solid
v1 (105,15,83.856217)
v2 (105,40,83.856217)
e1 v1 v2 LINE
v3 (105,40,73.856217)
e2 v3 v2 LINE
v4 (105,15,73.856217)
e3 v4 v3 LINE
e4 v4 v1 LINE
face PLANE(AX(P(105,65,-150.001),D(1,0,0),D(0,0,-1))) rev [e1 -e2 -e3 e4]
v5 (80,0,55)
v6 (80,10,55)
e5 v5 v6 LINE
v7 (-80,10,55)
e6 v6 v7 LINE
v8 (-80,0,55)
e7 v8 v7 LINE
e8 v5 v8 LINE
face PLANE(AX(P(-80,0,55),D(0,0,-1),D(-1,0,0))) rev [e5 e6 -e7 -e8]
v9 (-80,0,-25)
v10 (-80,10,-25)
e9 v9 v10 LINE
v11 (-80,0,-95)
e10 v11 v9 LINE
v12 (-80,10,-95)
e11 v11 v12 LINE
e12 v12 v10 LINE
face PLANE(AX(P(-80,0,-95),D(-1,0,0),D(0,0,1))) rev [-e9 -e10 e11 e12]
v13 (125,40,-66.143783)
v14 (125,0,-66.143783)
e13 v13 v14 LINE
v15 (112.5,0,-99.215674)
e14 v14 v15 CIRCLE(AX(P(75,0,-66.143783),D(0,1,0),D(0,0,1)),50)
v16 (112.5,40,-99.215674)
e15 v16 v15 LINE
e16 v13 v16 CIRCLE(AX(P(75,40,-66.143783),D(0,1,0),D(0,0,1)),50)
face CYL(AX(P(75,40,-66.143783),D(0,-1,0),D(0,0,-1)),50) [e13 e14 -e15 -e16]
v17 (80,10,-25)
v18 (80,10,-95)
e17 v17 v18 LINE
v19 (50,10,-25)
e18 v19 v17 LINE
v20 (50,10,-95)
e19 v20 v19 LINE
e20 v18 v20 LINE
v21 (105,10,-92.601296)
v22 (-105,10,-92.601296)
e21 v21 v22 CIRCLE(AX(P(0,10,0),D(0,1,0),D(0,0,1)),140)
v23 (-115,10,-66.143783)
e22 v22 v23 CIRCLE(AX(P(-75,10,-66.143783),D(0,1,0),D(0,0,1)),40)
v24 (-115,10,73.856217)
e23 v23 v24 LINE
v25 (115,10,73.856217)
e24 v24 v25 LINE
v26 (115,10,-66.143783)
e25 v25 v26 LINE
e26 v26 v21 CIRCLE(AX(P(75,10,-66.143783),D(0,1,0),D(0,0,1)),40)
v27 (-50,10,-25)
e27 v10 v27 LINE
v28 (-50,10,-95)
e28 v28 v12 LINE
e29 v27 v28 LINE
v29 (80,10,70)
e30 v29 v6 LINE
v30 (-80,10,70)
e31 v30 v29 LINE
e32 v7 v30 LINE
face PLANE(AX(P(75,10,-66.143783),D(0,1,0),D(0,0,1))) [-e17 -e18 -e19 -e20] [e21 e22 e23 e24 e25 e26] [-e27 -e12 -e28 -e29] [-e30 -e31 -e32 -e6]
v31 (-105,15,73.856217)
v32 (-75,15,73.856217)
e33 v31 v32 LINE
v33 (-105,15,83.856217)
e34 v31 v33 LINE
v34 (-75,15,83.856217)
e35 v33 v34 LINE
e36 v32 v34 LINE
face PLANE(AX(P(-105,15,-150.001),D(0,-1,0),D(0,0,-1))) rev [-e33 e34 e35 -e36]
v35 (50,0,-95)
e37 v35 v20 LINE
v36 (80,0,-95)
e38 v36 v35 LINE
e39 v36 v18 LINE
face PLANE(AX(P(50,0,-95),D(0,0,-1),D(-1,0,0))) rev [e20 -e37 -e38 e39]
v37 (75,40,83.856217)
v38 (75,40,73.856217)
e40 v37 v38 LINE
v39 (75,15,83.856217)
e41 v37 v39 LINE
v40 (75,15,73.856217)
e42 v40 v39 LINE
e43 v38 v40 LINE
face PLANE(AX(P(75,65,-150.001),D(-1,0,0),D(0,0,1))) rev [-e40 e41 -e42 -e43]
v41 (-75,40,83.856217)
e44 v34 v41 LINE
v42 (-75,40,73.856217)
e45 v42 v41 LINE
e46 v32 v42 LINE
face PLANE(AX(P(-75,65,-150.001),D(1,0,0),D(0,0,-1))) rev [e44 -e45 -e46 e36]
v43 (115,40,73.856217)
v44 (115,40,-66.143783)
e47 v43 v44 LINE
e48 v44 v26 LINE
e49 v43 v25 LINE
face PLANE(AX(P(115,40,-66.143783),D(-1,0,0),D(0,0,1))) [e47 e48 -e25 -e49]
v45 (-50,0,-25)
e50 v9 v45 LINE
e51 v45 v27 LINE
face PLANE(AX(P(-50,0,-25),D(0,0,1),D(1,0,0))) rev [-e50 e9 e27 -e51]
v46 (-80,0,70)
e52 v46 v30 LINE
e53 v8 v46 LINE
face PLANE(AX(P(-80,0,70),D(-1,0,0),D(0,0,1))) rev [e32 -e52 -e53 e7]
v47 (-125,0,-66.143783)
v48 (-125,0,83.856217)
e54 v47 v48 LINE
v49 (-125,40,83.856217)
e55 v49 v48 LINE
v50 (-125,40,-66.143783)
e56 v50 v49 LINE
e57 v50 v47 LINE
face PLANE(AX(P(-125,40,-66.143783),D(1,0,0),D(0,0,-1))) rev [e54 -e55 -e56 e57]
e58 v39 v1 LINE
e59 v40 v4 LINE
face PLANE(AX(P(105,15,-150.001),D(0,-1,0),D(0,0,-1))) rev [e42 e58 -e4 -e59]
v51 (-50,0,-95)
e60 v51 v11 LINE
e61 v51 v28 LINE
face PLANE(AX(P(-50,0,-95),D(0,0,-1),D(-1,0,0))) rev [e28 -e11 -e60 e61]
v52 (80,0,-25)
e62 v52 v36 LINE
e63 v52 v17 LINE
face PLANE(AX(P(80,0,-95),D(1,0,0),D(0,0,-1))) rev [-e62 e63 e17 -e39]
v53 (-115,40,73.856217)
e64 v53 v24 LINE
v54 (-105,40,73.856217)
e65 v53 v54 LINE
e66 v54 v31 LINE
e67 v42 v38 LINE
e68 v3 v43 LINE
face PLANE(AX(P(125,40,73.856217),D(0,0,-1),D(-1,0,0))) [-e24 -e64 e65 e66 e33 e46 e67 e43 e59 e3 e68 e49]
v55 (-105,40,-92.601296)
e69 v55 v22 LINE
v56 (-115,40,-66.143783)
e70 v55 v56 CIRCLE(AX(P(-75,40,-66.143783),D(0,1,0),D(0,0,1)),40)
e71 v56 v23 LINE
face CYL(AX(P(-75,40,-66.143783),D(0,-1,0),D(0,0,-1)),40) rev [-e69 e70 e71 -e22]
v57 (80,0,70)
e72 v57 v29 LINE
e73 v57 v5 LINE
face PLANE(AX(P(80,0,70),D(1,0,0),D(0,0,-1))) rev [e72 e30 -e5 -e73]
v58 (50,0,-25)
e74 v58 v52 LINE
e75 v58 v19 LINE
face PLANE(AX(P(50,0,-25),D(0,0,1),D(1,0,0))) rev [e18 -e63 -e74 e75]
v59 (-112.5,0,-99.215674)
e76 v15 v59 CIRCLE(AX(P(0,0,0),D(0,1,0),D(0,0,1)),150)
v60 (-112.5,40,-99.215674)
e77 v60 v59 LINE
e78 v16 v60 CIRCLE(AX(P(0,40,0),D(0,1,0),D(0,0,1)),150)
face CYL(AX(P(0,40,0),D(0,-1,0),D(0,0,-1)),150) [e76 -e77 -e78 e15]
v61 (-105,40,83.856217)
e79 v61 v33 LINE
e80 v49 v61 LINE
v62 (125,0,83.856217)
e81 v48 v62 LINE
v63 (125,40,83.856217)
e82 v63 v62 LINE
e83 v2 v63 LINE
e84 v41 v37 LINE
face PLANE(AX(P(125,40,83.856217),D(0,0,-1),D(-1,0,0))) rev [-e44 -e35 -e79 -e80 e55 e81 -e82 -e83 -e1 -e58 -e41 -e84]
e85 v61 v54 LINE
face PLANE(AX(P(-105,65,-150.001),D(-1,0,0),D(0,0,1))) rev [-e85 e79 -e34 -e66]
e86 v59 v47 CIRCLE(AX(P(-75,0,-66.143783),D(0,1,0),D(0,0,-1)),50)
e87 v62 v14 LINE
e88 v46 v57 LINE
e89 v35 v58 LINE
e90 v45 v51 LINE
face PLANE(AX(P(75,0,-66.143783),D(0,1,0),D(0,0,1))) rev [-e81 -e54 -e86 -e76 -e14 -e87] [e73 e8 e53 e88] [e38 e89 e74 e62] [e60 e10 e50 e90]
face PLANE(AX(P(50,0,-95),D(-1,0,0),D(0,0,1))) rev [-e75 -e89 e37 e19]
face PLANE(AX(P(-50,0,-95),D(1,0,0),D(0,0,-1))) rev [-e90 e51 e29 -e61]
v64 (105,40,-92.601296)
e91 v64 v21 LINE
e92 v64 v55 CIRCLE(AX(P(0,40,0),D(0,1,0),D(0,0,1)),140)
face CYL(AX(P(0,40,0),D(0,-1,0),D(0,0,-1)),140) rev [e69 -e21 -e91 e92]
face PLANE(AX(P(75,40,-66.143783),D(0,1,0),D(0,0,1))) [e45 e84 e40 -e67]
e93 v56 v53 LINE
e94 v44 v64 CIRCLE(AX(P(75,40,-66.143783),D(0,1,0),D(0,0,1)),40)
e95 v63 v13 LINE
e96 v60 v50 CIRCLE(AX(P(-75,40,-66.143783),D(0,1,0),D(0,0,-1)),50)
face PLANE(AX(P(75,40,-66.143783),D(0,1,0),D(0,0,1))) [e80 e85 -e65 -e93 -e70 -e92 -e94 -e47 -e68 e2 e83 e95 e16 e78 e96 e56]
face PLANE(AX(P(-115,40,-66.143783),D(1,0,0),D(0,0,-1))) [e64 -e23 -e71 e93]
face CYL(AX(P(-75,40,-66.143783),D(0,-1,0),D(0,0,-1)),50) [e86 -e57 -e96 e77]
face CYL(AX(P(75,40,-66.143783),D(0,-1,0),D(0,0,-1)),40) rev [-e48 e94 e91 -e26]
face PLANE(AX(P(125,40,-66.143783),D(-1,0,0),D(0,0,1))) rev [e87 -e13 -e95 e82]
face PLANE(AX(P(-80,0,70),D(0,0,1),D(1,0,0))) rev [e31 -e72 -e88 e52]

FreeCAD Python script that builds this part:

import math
import FreeCAD as App
import Part
import Sketcher

V = App.Vector


def faces_at(feature, points):
    """Names of the faces that lie closest to the given points."""
    faces = feature.Shape.Faces
    near = lambda p: min(range(len(faces)), key=lambda i: faces[i].distToShape(Part.Vertex(*p))[0])
    return sorted({f"Face{near(p) + 1}" for p in points})


def add_polygon(sketch, points):
    """Adds a closed chain of lines whose ends are joined by coincident constraints."""
    first, n = sketch.GeometryCount, len(points)
    for a, b in zip(points, points[1:] + points[:1]):
        sketch.addGeometry(Part.LineSegment(App.Vector(*a, 0), App.Vector(*b, 0)), False)
    for i in range(n):
        sketch.addConstraint(Sketcher.Constraint("Coincident", first + i, 2, first + (i + 1) % n, 1))

doc = App.newDocument("Part")
body = doc.addObject("PartDesign::Body", "Body")

# Sketch on XZ plane
sketch1 = body.newObject("Sketcher::SketchObject", "Sketch")
sketch1.AttachmentSupport = (doc.getObject("XZ_Plane"), [""])
sketch1.MapMode = "FlatFace"
sketch1.addGeometry(Part.LineSegment(V(125, 83.856217, 0), V(125, -66.143783, 0)), False)
sketch1.addGeometry(Part.ArcOfCircle(Part.Circle(V(75, -66.143783, 0), V(0, 0, 1), 50), math.radians(-41.409622), math.radians(0)), False)
sketch1.addGeometry(Part.ArcOfCircle(Part.Circle(V(0, 0, 0), V(0, 0, 1), 150), math.radians(-138.590378), math.radians(-41.409622)), False)
sketch1.addGeometry(Part.ArcOfCircle(Part.Circle(V(-75, -66.143783, 0), V(0, 0, 1), 50), math.radians(180), math.radians(221.409622)), False)
sketch1.addGeometry(Part.LineSegment(V(-125, -66.143783, 0), V(-125, 83.856217, 0)), False)
sketch1.addGeometry(Part.LineSegment(V(-125, 83.856217, 0), V(125, 83.856217, 0)), False)
sketch1.addConstraint(Sketcher.Constraint("Tangent", 0, 2, 1, 2))
sketch1.addConstraint(Sketcher.Constraint("Tangent", 1, 1, 2, 2))
sketch1.addConstraint(Sketcher.Constraint("Tangent", 2, 1, 3, 2))
sketch1.addConstraint(Sketcher.Constraint("Tangent", 3, 1, 4, 1))
sketch1.addConstraint(Sketcher.Constraint("Coincident", 4, 2, 5, 1))
sketch1.addConstraint(Sketcher.Constraint("Coincident", 5, 2, 0, 1))
sketch1.addConstraint(Sketcher.Constraint("Vertical", 0))
sketch1.addConstraint(Sketcher.Constraint("Vertical", 4))
sketch1.addConstraint(Sketcher.Constraint("Horizontal", 5))
sketch1.addConstraint(Sketcher.Constraint("Coincident", 2, 3, -1, 1))
sketch1.addConstraint(Sketcher.Constraint("Equal", 1, 3))
sketch1.addConstraint(Sketcher.Constraint("Horizontal", 1, 3, 3, 3))
sketch1.addConstraint(Sketcher.Constraint("Radius", 1, 50.0))
sketch1.addConstraint(Sketcher.Constraint("Radius", 2, 150.0))
sketch1.addConstraint(Sketcher.Constraint("DistanceX", 5, 1, 5, 2, 250.0))
sketch1.addConstraint(Sketcher.Constraint("DistanceY", 0, 2, 0, 1, 150.0))
pad1 = body.newObject("PartDesign::Pad", "Pad")
pad1.Profile = sketch1
pad1.Length = 40
pad1.Reversed = True
doc.recompute()

thickness = body.newObject("PartDesign::Thickness", "Thickness")
thickness.Base = (pad1, faces_at(pad1, [(0, 40, -33.072)]))
thickness.Value = 10
thickness.Reversed = True
thickness.Join = "Intersection"

# Sketch on XZ plane
sketch2 = body.newObject("Sketcher::SketchObject", "Sketch001")
sketch2.AttachmentSupport = (doc.getObject("XZ_Plane"), [""])
sketch2.MapMode = "FlatFace"
sketch2.AttachmentOffset = App.Placement(V(0, 0, -10), App.Rotation())
add_polygon(sketch2, [(-80, -95), (-80, -25), (-50, -25), (-50, -95)])  # lines 0-3
add_polygon(sketch2, [(50, -95), (50, -25), (80, -25), (80, -95)])  # lines 4-7
add_polygon(sketch2, [(-80, 55), (-80, 70), (80, 70), (80, 55)])  # lines 8-11
sketch2.addConstraint(Sketcher.Constraint("Vertical", 0))
sketch2.addConstraint(Sketcher.Constraint("Horizontal", 1))
sketch2.addConstraint(Sketcher.Constraint("Vertical", 2))
sketch2.addConstraint(Sketcher.Constraint("Horizontal", 3))
sketch2.addConstraint(Sketcher.Constraint("Vertical", 4))
sketch2.addConstraint(Sketcher.Constraint("Horizontal", 5))
sketch2.addConstraint(Sketcher.Constraint("Vertical", 6))
sketch2.addConstraint(Sketcher.Constraint("Horizontal", 7))
sketch2.addConstraint(Sketcher.Constraint("Vertical", 8))
sketch2.addConstraint(Sketcher.Constraint("Horizontal", 9))
sketch2.addConstraint(Sketcher.Constraint("Vertical", 10))
sketch2.addConstraint(Sketcher.Constraint("Horizontal", 11))
sketch2.addConstraint(Sketcher.Constraint("Symmetric", 1, 2, 4, 2, -2))
sketch2.addConstraint(Sketcher.Constraint("Symmetric", 3, 2, 6, 2, -2))
sketch2.addConstraint(Sketcher.Constraint("Vertical", 3, 2, 8, 2))
sketch2.addConstraint(Sketcher.Constraint("Vertical", 6, 2, 9, 2))
sketch2.addConstraint(Sketcher.Constraint("DistanceX", 1, 1, 1, 2, 30.0))
sketch2.addConstraint(Sketcher.Constraint("DistanceX", 9, 1, 9, 2, 160.0))
sketch2.addConstraint(Sketcher.Constraint("DistanceY", 0, 1, 0, 2, 70.0))
sketch2.addConstraint(Sketcher.Constraint("DistanceY", 8, 1, 8, 2, 15.0))
sketch2.addConstraint(Sketcher.Constraint("DistanceY", 0, 2, -1, 1, 25.0))
sketch2.addConstraint(Sketcher.Constraint("DistanceY", -1, 1, 8, 2, 70.0))
pocket1 = body.newObject("PartDesign::Pocket", "Pocket")
pocket1.Profile = sketch2
pocket1.Type = "ThroughAll"
pocket1.Reversed = True

# Sketch on XY plane
sketch3 = body.newObject("Sketcher::SketchObject", "Sketch002")
sketch3.AttachmentSupport = (doc.getObject("XY_Plane"), [""])
sketch3.MapMode = "FlatFace"
sketch3.AttachmentOffset = App.Placement(V(0, 0, 83.856217), App.Rotation())
add_polygon(sketch3, [(-105, 65), (-105, 15), (-75, 15), (-75, 65)])  # lines 0-3
sketch3.addConstraint(Sketcher.Constraint("Vertical", 0))
sketch3.addConstraint(Sketcher.Constraint("Horizontal", 1))
sketch3.addConstraint(Sketcher.Constraint("Vertical", 2))
sketch3.addConstraint(Sketcher.Constraint("Horizontal", 3))
sketch3.addConstraint(Sketcher.Constraint("DistanceX", 1, 1, 1, 2, 30.0))
sketch3.addConstraint(Sketcher.Constraint("DistanceY", 0, 2, 0, 1, 50.0))
sketch3.addConstraint(Sketcher.Constraint("DistanceX", 0, 2, -1, 1, 105.0))
sketch3.addConstraint(Sketcher.Constraint("DistanceY", -1, 1, 0, 2, 15.0))
pocket2 = body.newObject("PartDesign::Pocket", "Pocket001")
pocket2.Profile = sketch3
pocket2.Type = "UpToFirst"

# Sketch on XY plane
sketch4 = body.newObject("Sketcher::SketchObject", "Sketch003")
sketch4.AttachmentSupport = (doc.getObject("XY_Plane"), [""])
sketch4.MapMode = "FlatFace"
sketch4.AttachmentOffset = App.Placement(V(0, 0, 83.856217), App.Rotation())
add_polygon(sketch4, [(75, 65), (75, 15), (105, 15), (105, 65)])  # lines 0-3
sketch4.addConstraint(Sketcher.Constraint("Vertical", 0))
sketch4.addConstraint(Sketcher.Constraint("Horizontal", 1))
sketch4.addConstraint(Sketcher.Constraint("Vertical", 2))
sketch4.addConstraint(Sketcher.Constraint("Horizontal", 3))
sketch4.addConstraint(Sketcher.Constraint("DistanceX", 1, 1, 1, 2, 30.0))
sketch4.addConstraint(Sketcher.Constraint("DistanceY", 0, 2, 0, 1, 50.0))
sketch4.addConstraint(Sketcher.Constraint("DistanceX", -1, 1, 0, 2, 75.0))
sketch4.addConstraint(Sketcher.Constraint("DistanceY", -1, 1, 0, 2, 15.0))
pocket3 = body.newObject("PartDesign::Pocket", "Pocket002")
pocket3.Profile = sketch4
pocket3.Type = "UpToFirst"

doc.recompute()
